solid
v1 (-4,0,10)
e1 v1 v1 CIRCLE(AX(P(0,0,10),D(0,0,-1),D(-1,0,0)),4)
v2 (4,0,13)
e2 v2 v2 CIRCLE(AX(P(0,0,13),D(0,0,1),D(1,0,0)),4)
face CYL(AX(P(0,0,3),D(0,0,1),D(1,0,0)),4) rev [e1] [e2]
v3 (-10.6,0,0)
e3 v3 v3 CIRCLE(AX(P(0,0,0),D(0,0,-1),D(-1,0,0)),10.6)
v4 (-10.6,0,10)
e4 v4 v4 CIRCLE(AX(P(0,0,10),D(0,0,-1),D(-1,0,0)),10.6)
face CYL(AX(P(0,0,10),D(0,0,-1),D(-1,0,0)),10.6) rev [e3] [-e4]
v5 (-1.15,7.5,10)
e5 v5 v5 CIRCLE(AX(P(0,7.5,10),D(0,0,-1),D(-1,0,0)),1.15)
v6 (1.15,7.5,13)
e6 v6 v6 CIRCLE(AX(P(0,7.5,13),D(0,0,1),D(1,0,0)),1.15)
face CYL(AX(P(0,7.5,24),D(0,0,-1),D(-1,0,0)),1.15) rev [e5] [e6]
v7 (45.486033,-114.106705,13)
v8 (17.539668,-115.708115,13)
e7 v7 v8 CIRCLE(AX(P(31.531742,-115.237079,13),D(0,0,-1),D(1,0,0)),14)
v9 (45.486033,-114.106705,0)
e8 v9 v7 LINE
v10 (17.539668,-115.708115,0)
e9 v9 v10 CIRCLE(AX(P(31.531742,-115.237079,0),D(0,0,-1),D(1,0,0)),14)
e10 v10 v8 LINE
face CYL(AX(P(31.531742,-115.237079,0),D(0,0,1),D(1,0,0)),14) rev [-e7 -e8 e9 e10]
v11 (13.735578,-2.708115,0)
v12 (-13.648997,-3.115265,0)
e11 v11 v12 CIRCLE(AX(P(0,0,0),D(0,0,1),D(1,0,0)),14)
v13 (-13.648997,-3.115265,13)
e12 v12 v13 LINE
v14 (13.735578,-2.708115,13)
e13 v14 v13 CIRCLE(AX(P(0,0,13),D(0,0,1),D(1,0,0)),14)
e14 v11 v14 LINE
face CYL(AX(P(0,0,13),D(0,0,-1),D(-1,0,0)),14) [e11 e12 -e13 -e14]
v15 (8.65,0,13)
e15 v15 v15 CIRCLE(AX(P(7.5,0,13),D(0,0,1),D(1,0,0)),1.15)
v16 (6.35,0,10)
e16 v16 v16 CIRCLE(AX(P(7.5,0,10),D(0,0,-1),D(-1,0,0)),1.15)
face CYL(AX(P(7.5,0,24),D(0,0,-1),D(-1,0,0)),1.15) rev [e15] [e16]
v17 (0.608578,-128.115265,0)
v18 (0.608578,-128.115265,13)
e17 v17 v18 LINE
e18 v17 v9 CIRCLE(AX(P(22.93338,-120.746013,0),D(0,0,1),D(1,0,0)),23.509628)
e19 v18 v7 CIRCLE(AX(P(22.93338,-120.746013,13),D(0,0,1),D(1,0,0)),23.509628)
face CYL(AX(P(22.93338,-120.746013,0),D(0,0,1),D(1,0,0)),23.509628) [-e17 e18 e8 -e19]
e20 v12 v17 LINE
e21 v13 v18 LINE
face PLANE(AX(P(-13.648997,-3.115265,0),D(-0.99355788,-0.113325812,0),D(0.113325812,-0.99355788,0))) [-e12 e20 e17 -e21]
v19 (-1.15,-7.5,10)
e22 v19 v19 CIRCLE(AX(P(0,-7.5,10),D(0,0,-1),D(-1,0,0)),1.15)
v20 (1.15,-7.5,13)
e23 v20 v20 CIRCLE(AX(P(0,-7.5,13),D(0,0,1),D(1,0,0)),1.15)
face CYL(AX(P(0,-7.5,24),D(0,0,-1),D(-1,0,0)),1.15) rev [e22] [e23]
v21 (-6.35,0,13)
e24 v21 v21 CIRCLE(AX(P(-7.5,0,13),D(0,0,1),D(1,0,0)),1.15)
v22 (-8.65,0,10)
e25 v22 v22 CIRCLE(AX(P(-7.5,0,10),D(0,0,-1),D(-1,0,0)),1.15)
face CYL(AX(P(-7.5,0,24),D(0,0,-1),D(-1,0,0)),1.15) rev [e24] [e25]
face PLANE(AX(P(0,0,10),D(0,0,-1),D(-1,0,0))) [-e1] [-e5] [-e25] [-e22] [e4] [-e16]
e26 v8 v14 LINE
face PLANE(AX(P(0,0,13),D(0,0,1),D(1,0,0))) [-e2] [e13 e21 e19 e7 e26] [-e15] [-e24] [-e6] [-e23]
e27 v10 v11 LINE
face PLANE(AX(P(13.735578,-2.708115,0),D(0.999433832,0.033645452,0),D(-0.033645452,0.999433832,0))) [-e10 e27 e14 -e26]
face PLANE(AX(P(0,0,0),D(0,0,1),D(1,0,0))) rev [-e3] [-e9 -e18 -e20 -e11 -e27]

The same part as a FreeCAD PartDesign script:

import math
import FreeCAD as App
import Part
import Sketcher
from FreeCAD import Vector

doc = App.newDocument("Part")
body = doc.addObject("PartDesign::Body", "Body")

sketch1 = doc.addObject("Sketcher::SketchObject", "Sketch")
body.addObject(sketch1)
sketch1.AttachmentSupport = (doc.XY_Plane, [""])
sketch1.MapMode = "FlatFace"
sketch1.addGeometry(Part.Circle(Vector(0, 0, 0), Vector(0, 0, 1), 14), False)
sketch1.addConstraint([
    Sketcher.Constraint("Coincident", 0, 3, -1, 1),
    Sketcher.Constraint("Diameter", 0, 28.0),
])
pad1 = doc.addObject("PartDesign::Pad", "Pad")
body.addObject(pad1)
pad1.Profile = sketch1
pad1.Length = 13

sketch2 = doc.addObject("Sketcher::SketchObject", "Sketch001")
body.addObject(sketch2)
sketch2.AttachmentSupport = (doc.XY_Plane, [""])
sketch2.MapMode = "FlatFace"
sketch2.addGeometry(Part.Circle(Vector(0, 0, 0), Vector(0, 0, 1), 11), False)
sketch2.addConstraint([
    Sketcher.Constraint("Coincident", 0, 3, -1, 1),
    Sketcher.Constraint("Diameter", 0, 21.2),
])
pocket1 = doc.addObject("PartDesign::Pocket", "Pocket")
body.addObject(pocket1)
pocket1.Profile = sketch2
pocket1.Length = 10
pocket1.Reversed = True

sketch3 = doc.addObject("Sketcher::SketchObject", "Sketch002")
body.addObject(sketch3)
sketch3.AttachmentSupport = (doc.XY_Plane, [""])
sketch3.MapMode = "FlatFace"
sketch3.AttachmentOffset = App.Placement(Vector(0, 0, 13), App.Rotation())
sketch3.addGeometry(Part.Circle(Vector(0, 0, 0), Vector(0, 0, 1), 4), False)
sketch3.addConstraint([
    Sketcher.Constraint("Coincident", 0, 3, -1, 1),
    Sketcher.Constraint("Diameter", 0, 8.0),
])
pocket2 = doc.addObject("PartDesign::Pocket", "Pocket001")
body.addObject(pocket2)
pocket2.Profile = sketch3
pocket2.Length = 10

sketch4 = doc.addObject("Sketcher::SketchObject", "Sketch003")
body.addObject(sketch4)
sketch4.AttachmentSupport = (doc.XY_Plane, [""])
sketch4.MapMode = "FlatFace"
sketch4.addGeometry([
    Part.LineSegment(Vector(18, -116, 0), Vector(14, -3, 0)),
    Part.ArcOfCircle(Part.Circle(Vector(0, 0, 0), Vector(0, 0, 1), 14), math.radians(-167), math.radians(-11)),
    Part.LineSegment(Vector(-14, -3, 0), Vector(1, -128, 0)),
    Part.ArcOfCircle(Part.Circle(Vector(23, -121, 0), Vector(0, 0, 1), 24), math.radians(-162), math.radians(16)),
    Part.ArcOfCircle(Part.Circle(Vector(32, -115, 0), Vector(0, 0, 1), 14), math.radians(-178), math.radians(5)),
], False)
sketch4.addConstraint([
    Sketcher.Constraint("Coincident", 0, 2, 1, 2),
    Sketcher.Constraint("Coincident", 1, 1, 2, 1),
    Sketcher.Constraint("Coincident", 2, 2, 3, 1),
    Sketcher.Constraint("Coincident", 3, 2, 4, 2),
    Sketcher.Constraint("Tangent", 4, 1, 0, 1),
    Sketcher.Constraint("Coincident", 1, 3, -1, 1),
    Sketcher.Constraint("Equal", 1, 4),
    Sketcher.Constraint("Radius", 1, 14.0),
    Sketcher.Constraint("DistanceY", 2, 2, 1, 1, 125.0),
    Sketcher.Constraint("DistanceY", 4, 1, 0, 2, 113.0),
    Sketcher.Constraint("Radius", 3, 23.509628),
    Sketcher.Constraint("DistanceX", 2, 2, 0, 2, 13.127),
    Sketcher.Constraint("DistanceX", 0, 2, 3, 3, 9.197801),
    Sketcher.Constraint("DistanceY", 3, 3, 0, 2, 118.037898),
    Sketcher.Constraint("DistanceX", -1, 1, 3, 3, 22.93338),
    Sketcher.Constraint("DistanceX", -1, 1, 4, 3, 31.531742),
])
pad2 = doc.addObject("PartDesign::Pad", "Pad001")
body.addObject(pad2)
pad2.Profile = sketch4
pad2.Length = 13

sketch5 = doc.addObject("Sketcher::SketchObject", "Sketch004")
body.addObject(sketch5)
sketch5.AttachmentSupport = (doc.XY_Plane, [""])
sketch5.MapMode = "FlatFace"
sketch5.AttachmentOffset = App.Placement(Vector(0, 0, 10), App.Rotation())
sketch5.addGeometry([
    Part.Circle(Vector(-7.5, 0, 0), Vector(0, 0, 1), 1.1),
    Part.Circle(Vector(0, -7.5, 0), Vector(0, 0, 1), 1.1),
    Part.Circle(Vector(7.5, 0, 0), Vector(0, 0, 1), 1.1),
    Part.Circle(Vector(0, 7.5, 0), Vector(0, 0, 1), 1.1),
], False)
sketch5.addConstraint([
    Sketcher.Constraint("Equal", 0, 1),
    Sketcher.Constraint("Equal", 1, 2),
    Sketcher.Constraint("Equal", 2, 3),
    Sketcher.Constraint("Symmetric", 0, 3, 2, 3, -1, 1),
    Sketcher.Constraint("Symmetric", 1, 3, 3, 3, -1, 1),
    Sketcher.Constraint("PointOnObject", 0, 3, -1),
    Sketcher.Constraint("PointOnObject", 1, 3, -2),
    Sketcher.Constraint("Diameter", 0, 2.3),
    Sketcher.Constraint("DistanceX", 0, 3, 2, 3, 15.0),
    Sketcher.Constraint("DistanceY", 1, 3, 3, 3, 15.0),
])
pocket3 = doc.addObject("PartDesign::Pocket", "Pocket002")
body.addObject(pocket3)
pocket3.Profile = sketch5
pocket3.Length = 14
pocket3.Reversed = True

doc.recompute()
